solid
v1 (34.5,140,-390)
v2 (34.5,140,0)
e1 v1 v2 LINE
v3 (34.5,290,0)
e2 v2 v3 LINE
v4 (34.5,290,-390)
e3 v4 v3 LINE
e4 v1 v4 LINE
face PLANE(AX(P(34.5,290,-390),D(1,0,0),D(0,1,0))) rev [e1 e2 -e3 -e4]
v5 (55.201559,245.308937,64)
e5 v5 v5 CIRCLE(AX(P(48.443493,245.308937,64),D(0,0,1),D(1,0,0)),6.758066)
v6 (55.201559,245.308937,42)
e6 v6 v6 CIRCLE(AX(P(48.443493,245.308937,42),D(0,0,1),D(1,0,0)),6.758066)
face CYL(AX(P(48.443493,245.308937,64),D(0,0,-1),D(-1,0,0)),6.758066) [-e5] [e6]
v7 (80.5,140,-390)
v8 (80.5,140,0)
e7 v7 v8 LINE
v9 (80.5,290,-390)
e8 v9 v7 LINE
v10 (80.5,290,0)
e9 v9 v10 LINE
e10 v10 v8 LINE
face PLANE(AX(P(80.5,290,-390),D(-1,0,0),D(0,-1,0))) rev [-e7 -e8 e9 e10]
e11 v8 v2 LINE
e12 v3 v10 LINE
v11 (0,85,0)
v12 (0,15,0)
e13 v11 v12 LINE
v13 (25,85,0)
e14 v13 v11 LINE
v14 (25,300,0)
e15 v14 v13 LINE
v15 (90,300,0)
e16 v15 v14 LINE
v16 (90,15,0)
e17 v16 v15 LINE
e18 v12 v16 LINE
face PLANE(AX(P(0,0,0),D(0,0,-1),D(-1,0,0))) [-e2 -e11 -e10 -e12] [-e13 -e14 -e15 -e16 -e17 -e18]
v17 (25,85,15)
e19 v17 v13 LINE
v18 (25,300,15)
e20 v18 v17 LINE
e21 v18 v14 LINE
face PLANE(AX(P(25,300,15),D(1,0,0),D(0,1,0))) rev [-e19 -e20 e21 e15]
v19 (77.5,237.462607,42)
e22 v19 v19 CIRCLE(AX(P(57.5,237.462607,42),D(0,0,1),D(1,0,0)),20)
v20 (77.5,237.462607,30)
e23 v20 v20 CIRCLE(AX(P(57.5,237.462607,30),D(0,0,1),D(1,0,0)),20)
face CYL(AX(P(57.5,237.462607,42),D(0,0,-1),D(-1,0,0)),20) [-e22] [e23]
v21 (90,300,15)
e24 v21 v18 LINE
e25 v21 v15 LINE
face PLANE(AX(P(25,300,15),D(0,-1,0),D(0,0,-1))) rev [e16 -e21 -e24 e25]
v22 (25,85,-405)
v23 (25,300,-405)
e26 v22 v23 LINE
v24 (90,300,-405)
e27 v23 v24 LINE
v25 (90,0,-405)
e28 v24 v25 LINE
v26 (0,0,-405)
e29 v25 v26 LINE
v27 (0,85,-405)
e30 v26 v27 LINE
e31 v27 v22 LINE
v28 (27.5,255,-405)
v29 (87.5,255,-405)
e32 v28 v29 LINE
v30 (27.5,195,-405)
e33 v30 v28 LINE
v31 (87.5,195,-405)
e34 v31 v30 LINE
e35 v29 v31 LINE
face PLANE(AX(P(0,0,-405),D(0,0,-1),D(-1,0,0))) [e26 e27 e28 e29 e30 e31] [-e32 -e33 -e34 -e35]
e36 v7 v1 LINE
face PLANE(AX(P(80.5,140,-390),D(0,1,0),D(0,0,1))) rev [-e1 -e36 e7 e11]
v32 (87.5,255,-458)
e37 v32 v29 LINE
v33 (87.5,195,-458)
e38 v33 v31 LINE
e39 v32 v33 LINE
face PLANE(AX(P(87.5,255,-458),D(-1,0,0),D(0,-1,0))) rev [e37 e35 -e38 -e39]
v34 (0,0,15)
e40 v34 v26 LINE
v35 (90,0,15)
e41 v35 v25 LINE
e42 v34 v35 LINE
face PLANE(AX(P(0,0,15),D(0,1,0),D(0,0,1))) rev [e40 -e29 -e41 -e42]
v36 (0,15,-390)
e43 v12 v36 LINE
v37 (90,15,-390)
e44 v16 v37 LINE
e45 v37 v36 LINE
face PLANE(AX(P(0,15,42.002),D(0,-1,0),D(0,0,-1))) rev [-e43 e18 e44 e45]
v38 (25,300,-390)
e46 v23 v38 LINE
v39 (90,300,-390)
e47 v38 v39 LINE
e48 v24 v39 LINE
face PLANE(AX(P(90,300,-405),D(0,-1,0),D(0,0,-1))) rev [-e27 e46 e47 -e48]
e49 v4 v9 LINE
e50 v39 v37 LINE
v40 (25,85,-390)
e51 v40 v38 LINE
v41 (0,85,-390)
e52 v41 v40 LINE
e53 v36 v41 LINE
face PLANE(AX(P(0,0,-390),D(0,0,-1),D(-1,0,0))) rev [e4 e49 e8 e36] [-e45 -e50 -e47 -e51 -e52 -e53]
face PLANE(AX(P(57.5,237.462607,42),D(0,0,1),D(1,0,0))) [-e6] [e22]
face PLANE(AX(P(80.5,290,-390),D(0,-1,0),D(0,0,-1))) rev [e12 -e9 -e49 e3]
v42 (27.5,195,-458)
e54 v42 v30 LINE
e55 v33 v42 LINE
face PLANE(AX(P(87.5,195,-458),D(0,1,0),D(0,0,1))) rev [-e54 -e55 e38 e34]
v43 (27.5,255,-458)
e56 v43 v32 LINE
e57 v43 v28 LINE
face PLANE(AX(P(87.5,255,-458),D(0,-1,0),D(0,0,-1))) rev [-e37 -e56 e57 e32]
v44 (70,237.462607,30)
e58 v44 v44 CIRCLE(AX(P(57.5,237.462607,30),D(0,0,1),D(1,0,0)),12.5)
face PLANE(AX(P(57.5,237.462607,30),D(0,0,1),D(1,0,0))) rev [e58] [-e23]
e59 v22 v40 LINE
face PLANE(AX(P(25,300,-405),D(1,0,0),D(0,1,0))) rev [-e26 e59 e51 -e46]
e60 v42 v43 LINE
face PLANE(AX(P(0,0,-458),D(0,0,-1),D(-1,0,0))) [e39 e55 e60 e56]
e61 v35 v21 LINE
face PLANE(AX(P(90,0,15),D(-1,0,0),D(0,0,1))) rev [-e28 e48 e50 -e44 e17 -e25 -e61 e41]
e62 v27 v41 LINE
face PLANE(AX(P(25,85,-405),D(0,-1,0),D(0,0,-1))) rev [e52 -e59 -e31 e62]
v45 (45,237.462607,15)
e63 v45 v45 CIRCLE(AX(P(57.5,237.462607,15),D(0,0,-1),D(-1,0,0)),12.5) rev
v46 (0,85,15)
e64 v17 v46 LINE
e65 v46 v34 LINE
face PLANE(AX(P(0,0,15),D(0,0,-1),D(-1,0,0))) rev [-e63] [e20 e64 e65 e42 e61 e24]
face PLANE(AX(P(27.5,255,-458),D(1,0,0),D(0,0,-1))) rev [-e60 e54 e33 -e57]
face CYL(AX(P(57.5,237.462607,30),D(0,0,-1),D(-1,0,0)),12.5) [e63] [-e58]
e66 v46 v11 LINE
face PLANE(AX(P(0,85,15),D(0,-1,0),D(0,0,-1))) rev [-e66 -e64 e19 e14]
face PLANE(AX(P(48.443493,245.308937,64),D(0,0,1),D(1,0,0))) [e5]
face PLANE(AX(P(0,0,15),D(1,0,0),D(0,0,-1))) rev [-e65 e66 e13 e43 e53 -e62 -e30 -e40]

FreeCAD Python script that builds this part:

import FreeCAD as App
import Part
import Sketcher
Q = App.Units.Quantity

doc = App.newDocument("Part")
params = doc.addObject("Spreadsheet::Sheet", "Params")
for row, (alias, value) in enumerate([
    ("sketch1_width", "90 mm"),
    ("sketch1_width2", "65 mm"),
    ("sketch1_height", "300 mm"),
    ("sketch1_height2", "215 mm"),
    ("pad1_length", "15 mm"),
    ("sketch2_diameter", "25 mm"),
    ("pad2_length", "15 mm"),
    ("sketch3_diameter", "40 mm"),
    ("pad3_length", "12 mm"),
    ("sketch4_width", "46 mm"),
    ("sketch4_height", "150 mm"),
    ("pad4_length", "390 mm"),
    ("sketch5_width", "65 mm"),
    ("sketch5_width2", "90 mm"),
    ("sketch5_height", "300 mm"),
    ("sketch5_height2", "85 mm"),
    ("pad5_length", "15 mm"),
    ("sketch6_width", "60 mm"),
    ("pad6_length", "53 mm"),
    ("sketch7_width", "90 mm"),
    ("sketch7_height", "15 mm"),
    ("pad8_length", "22 mm"),
], start=1):
    params.set(f"A{row}", alias)
    params.set(f"B{row}", "=" + value)
    params.setAlias(f"B{row}", alias)

body = doc.addObject("PartDesign::Body", "Body")

sketch1 = doc.addObject("Sketcher::SketchObject", "Sketch")
body.addObject(sketch1)
sketch1.AttachmentSupport = (doc.XY_Plane, [""])
sketch1.MapMode = "FlatFace"
sketch1.addGeometry([
    Part.LineSegment(App.Vector(0, 0, 0), App.Vector(90, 0, 0)),
    Part.LineSegment(App.Vector(90, 0, 0), App.Vector(90, 300, 0)),
    Part.LineSegment(App.Vector(90, 300, 0), App.Vector(25, 300, 0)),
    Part.LineSegment(App.Vector(25, 300, 0), App.Vector(25, 85, 0)),
    Part.LineSegment(App.Vector(25, 85, 0), App.Vector(0, 85, 0)),
    Part.LineSegment(App.Vector(0, 85, 0), App.Vector(0, 0, 0)),
], False)
sketch1.addConstraint([
    Sketcher.Constraint("Coincident", 0, 2, 1, 1),
    Sketcher.Constraint("Coincident", 1, 2, 2, 1),
    Sketcher.Constraint("Coincident", 2, 2, 3, 1),
    Sketcher.Constraint("Coincident", 3, 2, 4, 1),
    Sketcher.Constraint("Coincident", 4, 2, 5, 1),
    Sketcher.Constraint("Coincident", 5, 2, 0, 1),
    Sketcher.Constraint("Horizontal", 0),
    Sketcher.Constraint("Vertical", 1),
    Sketcher.Constraint("Horizontal", 2),
    Sketcher.Constraint("Vertical", 3),
    Sketcher.Constraint("Horizontal", 4),
    Sketcher.Constraint("Vertical", 5),
    Sketcher.Constraint("Coincident", 5, 2, -1, 1),
    Sketcher.Constraint("DistanceX", 0, 1, 0, 2, Q("90 mm")),
    Sketcher.Constraint("DistanceX", 2, 2, 2, 1, Q("65 mm")),
    Sketcher.Constraint("DistanceY", 1, 1, 1, 2, Q("300 mm")),
    Sketcher.Constraint("DistanceY", 3, 2, 3, 1, Q("215 mm")),
])
sketch1.setExpression("Constraints[13]", "Params.sketch1_width")
sketch1.setExpression("Constraints[14]", "Params.sketch1_width2")
sketch1.setExpression("Constraints[15]", "Params.sketch1_height")
sketch1.setExpression("Constraints[16]", "Params.sketch1_height2")
pad1 = doc.addObject("PartDesign::Pad", "Pad")
body.addObject(pad1)
pad1.Profile = sketch1
pad1.setExpression("Length", "Params.pad1_length")

sketch2 = doc.addObject("Sketcher::SketchObject", "Sketch001")
body.addObject(sketch2)
sketch2.AttachmentSupport = (doc.XY_Plane, [""])
sketch2.MapMode = "FlatFace"
sketch2.AttachmentOffset = App.Placement(App.Vector(0, 0, 15), App.Rotation())
sketch2.addGeometry(Part.Circle(App.Vector(58, 237, 0), App.Vector(0, 0, 1), 12), False)
sketch2.addConstraint([
    Sketcher.Constraint("Diameter", 0, Q("25 mm")),
    Sketcher.Constraint("DistanceX", -1, 1, 0, 3, Q("57.5 mm")),
    Sketcher.Constraint("DistanceY", -1, 1, 0, 3, Q("237.462607 mm")),
])
sketch2.setExpression("Constraints[0]", "Params.sketch2_diameter")
pad2 = doc.addObject("PartDesign::Pad", "Pad001")
body.addObject(pad2)
pad2.Profile = sketch2
pad2.setExpression("Length", "Params.pad2_length")

sketch3 = doc.addObject("Sketcher::SketchObject", "Sketch002")
body.addObject(sketch3)
sketch3.AttachmentSupport = (doc.XY_Plane, [""])
sketch3.MapMode = "FlatFace"
sketch3.AttachmentOffset = App.Placement(App.Vector(0, 0, 30), App.Rotation())
sketch3.addGeometry(Part.Circle(App.Vector(58, 237, 0), App.Vector(0, 0, 1), 20), False)
sketch3.addConstraint([
    Sketcher.Constraint("Diameter", 0, Q("40 mm")),
    Sketcher.Constraint("DistanceX", -1, 1, 0, 3, Q("57.5 mm")),
    Sketcher.Constraint("DistanceY", -1, 1, 0, 3, Q("237.462607 mm")),
])
sketch3.setExpression("Constraints[0]", "Params.sketch3_diameter")
pad3 = doc.addObject("PartDesign::Pad", "Pad002")
body.addObject(pad3)
pad3.Profile = sketch3
pad3.setExpression("Length", "Params.pad3_length")

sketch4 = doc.addObject("Sketcher::SketchObject", "Sketch003")
body.addObject(sketch4)
sketch4.AttachmentSupport = (doc.XY_Plane, [""])
sketch4.MapMode = "FlatFace"
sketch4.addGeometry([
    Part.LineSegment(App.Vector(80, 290, 0), App.Vector(80, 140, 0)),
    Part.LineSegment(App.Vector(80, 140, 0), App.Vector(34, 140, 0)),
    Part.LineSegment(App.Vector(34, 140, 0), App.Vector(34, 290, 0)),
    Part.LineSegment(App.Vector(34, 290, 0), App.Vector(80, 290, 0)),
], False)
sketch4.addConstraint([
    Sketcher.Constraint("Coincident", 0, 2, 1, 1),
    Sketcher.Constraint("Coincident", 1, 2, 2, 1),
    Sketcher.Constraint("Coincident", 2, 2, 3, 1),
    Sketcher.Constraint("Coincident", 3, 2, 0, 1),
    Sketcher.Constraint("Vertical", 0),
    Sketcher.Constraint("Horizontal", 1),
    Sketcher.Constraint("Vertical", 2),
    Sketcher.Constraint("Horizontal", 3),
    Sketcher.Constraint("DistanceX", 1, 2, 1, 1, Q("46 mm")),
    Sketcher.Constraint("DistanceY", 0, 2, 0, 1, Q("150 mm")),
    Sketcher.Constraint("DistanceY", -1, 1, 0, 2, Q("140 mm")),
    Sketcher.Constraint("DistanceX", -1, 1, 0, 2, Q("80.5 mm")),
])
sketch4.setExpression("Constraints[8]", "Params.sketch4_width")
sketch4.setExpression("Constraints[9]", "Params.sketch4_height")
pad4 = doc.addObject("PartDesign::Pad", "Pad003")
body.addObject(pad4)
pad4.Profile = sketch4
pad4.setExpression("Length", "Params.pad4_length")
pad4.Reversed = True

sketch5 = doc.addObject("Sketcher::SketchObject", "Sketch004")
body.addObject(sketch5)
sketch5.AttachmentSupport = (doc.XY_Plane, [""])
sketch5.MapMode = "FlatFace"
sketch5.AttachmentOffset = App.Placement(App.Vector(0, 0, -390), App.Rotation())
sketch5.addGeometry([
    Part.LineSegment(App.Vector(25, 300, 0), App.Vector(90, 300, 0)),
    Part.LineSegment(App.Vector(90, 300, 0), App.Vector(90, 0, 0)),
    Part.LineSegment(App.Vector(90, 0, 0), App.Vector(0, 0, 0)),
    Part.LineSegment(App.Vector(0, 0, 0), App.Vector(0, 85, 0)),
    Part.LineSegment(App.Vector(0, 85, 0), App.Vector(25, 85, 0)),
    Part.LineSegment(App.Vector(25, 85, 0), App.Vector(25, 300, 0)),
], False)
sketch5.addConstraint([
    Sketcher.Constraint("Coincident", 0, 2, 1, 1),
    Sketcher.Constraint("Coincident", 1, 2, 2, 1),
    Sketcher.Constraint("Coincident", 2, 2, 3, 1),
    Sketcher.Constraint("Coincident", 3, 2, 4, 1),
    Sketcher.Constraint("Coincident", 4, 2, 5, 1),
    Sketcher.Constraint("Coincident", 5, 2, 0, 1),
    Sketcher.Constraint("Horizontal", 0),
    Sketcher.Constraint("Vertical", 1),
    Sketcher.Constraint("Horizontal", 2),
    Sketcher.Constraint("Vertical", 3),
    Sketcher.Constraint("Horizontal", 4),
    Sketcher.Constraint("Vertical", 5),
    Sketcher.Constraint("Coincident", 2, 2, -1, 1),
    Sketcher.Constraint("DistanceX", 0, 1, 0, 2, Q("65 mm")),
    Sketcher.Constraint("DistanceX", 2, 2, 2, 1, Q("90 mm")),
    Sketcher.Constraint("DistanceY", 1, 2, 1, 1, Q("300 mm")),
    Sketcher.Constraint("DistanceY", 3, 1, 3, 2, Q("85 mm")),
])
sketch5.setExpression("Constraints[13]", "Params.sketch5_width")
sketch5.setExpression("Constraints[14]", "Params.sketch5_width2")
sketch5.setExpression("Constraints[15]", "Params.sketch5_height")
sketch5.setExpression("Constraints[16]", "Params.sketch5_height2")
pad5 = doc.addObject("PartDesign::Pad", "Pad004")
body.addObject(pad5)
pad5.Profile = sketch5
pad5.setExpression("Length", "Params.pad5_length")
pad5.Reversed = True

sketch6 = doc.addObject("Sketcher::SketchObject", "Sketch005")
body.addObject(sketch6)
sketch6.AttachmentSupport = (doc.XY_Plane, [""])
sketch6.MapMode = "FlatFace"
sketch6.AttachmentOffset = App.Placement(App.Vector(0, 0, -405), App.Rotation())
sketch6.addGeometry([
    Part.LineSegment(App.Vector(88, 255, 0), App.Vector(88, 195, 0)),
    Part.LineSegment(App.Vector(88, 195, 0), App.Vector(28, 195, 0)),
    Part.LineSegment(App.Vector(28, 195, 0), App.Vector(28, 255, 0)),
    Part.LineSegment(App.Vector(28, 255, 0), App.Vector(88, 255, 0)),
], False)
sketch6.addConstraint([
    Sketcher.Constraint("Coincident", 0, 2, 1, 1),
    Sketcher.Constraint("Coincident", 1, 2, 2, 1),
    Sketcher.Constraint("Coincident", 2, 2, 3, 1),
    Sketcher.Constraint("Coincident", 3, 2, 0, 1),
    Sketcher.Constraint("Vertical", 0),
    Sketcher.Constraint("Horizontal", 1),
    Sketcher.Constraint("Vertical", 2),
    Sketcher.Constraint("Horizontal", 3),
    Sketcher.Constraint("Equal", 3, 0),
    Sketcher.Constraint("DistanceX", 1, 2, 1, 1, Q("60 mm")),
    Sketcher.Constraint("DistanceY", -1, 1, 0, 2, Q("195 mm")),
    Sketcher.Constraint("DistanceX", -1, 1, 0, 2, Q("87.5 mm")),
])
sketch6.setExpression("Constraints[9]", "Params.sketch6_width")
pad6 = doc.addObject("PartDesign::Pad", "Pad005")
body.addObject(pad6)
pad6.Profile = sketch6
pad6.setExpression("Length", "Params.pad6_length")
pad6.Reversed = True

sketch7 = doc.addObject("Sketcher::SketchObject", "Sketch006")
body.addObject(sketch7)
sketch7.AttachmentSupport = (doc.XY_Plane, [""])
sketch7.MapMode = "FlatFace"
sketch7.AttachmentOffset = App.Placement(App.Vector(0, 0, -390), App.Rotation())
sketch7.addGeometry([
    Part.LineSegment(App.Vector(0, 15, 0), App.Vector(0, 0, 0)),
    Part.LineSegment(App.Vector(0, 0, 0), App.Vector(90, 0, 0)),
    Part.LineSegment(App.Vector(90, 0, 0), App.Vector(90, 15, 0)),
    Part.LineSegment(App.Vector(90, 15, 0), App.Vector(0, 15, 0)),
], False)
sketch7.addConstraint([
    Sketcher.Constraint("Coincident", 0, 2, 1, 1),
    Sketcher.Constraint("Coincident", 1, 2, 2, 1),
    Sketcher.Constraint("Coincident", 2, 2, 3, 1),
    Sketcher.Constraint("Coincident", 3, 2, 0, 1),
    Sketcher.Constraint("Vertical", 0),
    Sketcher.Constraint("Horizontal", 1),
    Sketcher.Constraint("Vertical", 2),
    Sketcher.Constraint("Horizontal", 3),
    Sketcher.Constraint("Coincident", 0, 2, -1, 1),
    Sketcher.Constraint("DistanceX", 1, 1, 1, 2, Q("90 mm")),
    Sketcher.Constraint("DistanceY", 0, 2, 0, 1, Q("15 mm")),
])
sketch7.setExpression("Constraints[9]", "Params.sketch7_width")
sketch7.setExpression("Constraints[10]", "Params.sketch7_height")
pad7 = doc.addObject("PartDesign::Pad", "Pad006")
body.addObject(pad7)
pad7.Profile = sketch7
pad7.Type = "UpToFirst"

sketch8 = doc.addObject("Sketcher::SketchObject", "Sketch007")
body.addObject(sketch8)
sketch8.AttachmentSupport = (doc.XY_Plane, [""])
sketch8.MapMode = "FlatFace"
sketch8.AttachmentOffset = App.Placement(App.Vector(0, 0, 42), App.Rotation())
sketch8.addGeometry(Part.Circle(App.Vector(48, 245, 0), App.Vector(0, 0, 1), 7), False)
sketch8.addConstraint([
    Sketcher.Constraint("Diameter", 0, Q("13.516132 mm")),
    Sketcher.Constraint("DistanceX", -1, 1, 0, 3, Q("48.443493 mm")),
    Sketcher.Constraint("DistanceY", -1, 1, 0, 3, Q("245.308937 mm")),
])
pad8 = doc.addObject("PartDesign::Pad", "Pad007")
body.addObject(pad8)
pad8.Profile = sketch8
pad8.setExpression("Length", "Params.pad8_length")

doc.recompute()
